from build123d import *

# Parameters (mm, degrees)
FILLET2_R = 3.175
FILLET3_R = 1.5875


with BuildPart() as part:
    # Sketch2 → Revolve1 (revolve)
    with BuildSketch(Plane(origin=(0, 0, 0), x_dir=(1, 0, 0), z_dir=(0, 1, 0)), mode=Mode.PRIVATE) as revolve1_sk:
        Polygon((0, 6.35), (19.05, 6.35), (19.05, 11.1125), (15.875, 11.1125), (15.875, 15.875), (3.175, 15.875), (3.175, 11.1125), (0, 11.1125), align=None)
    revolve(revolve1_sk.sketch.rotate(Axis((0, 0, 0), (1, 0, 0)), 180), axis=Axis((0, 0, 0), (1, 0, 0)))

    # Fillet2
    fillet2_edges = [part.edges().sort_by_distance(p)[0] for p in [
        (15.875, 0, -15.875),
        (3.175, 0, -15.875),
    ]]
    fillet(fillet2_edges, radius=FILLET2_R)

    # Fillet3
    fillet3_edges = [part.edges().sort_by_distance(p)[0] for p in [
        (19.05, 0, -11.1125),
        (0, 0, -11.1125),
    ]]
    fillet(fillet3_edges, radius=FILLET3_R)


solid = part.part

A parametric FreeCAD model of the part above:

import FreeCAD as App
import Part
import Sketcher

V = App.Vector
Q = App.Units.Quantity


def edges_at(feature, points):
    """Names of the edges that pass closest to the given points."""
    edges = feature.Shape.Edges
    near = lambda p: min(range(len(edges)), key=lambda i: edges[i].distToShape(Part.Vertex(*p))[0])
    return sorted({f"Edge{near(p) + 1}" for p in points})


def add_polygon(sketch, points):
    """Adds a closed chain of lines whose ends are joined by coincident constraints."""
    first, n = sketch.GeometryCount, len(points)
    for a, b in zip(points, points[1:] + points[:1]):
        sketch.addGeometry(Part.LineSegment(App.Vector(*a, 0), App.Vector(*b, 0)), False)
    for i in range(n):
        sketch.addConstraint(Sketcher.Constraint("Coincident", first + i, 2, first + (i + 1) % n, 1))

doc = App.newDocument("Part")
params = doc.addObject("Spreadsheet::Sheet", "Params")
for row, (alias, value) in enumerate([
    ("sketch1_width", "0.5 in"),
    ("sketch1_width2", "0.75 in"),
    ("sketch1_height", "0.1875 in"),
    ("revolution_angle", "360 deg"),
    ("fillet_radius", "0.125 in"),
    ("fillet2_radius", "0.0625 in"),
], start=1):
    params.set(f"A{row}", alias)
    params.set(f"B{row}", "=" + value)
    params.setAlias(f"B{row}", alias)

body = doc.addObject("PartDesign::Body", "Body")

sketch1 = body.newObject("Sketcher::SketchObject", "Sketch")
sketch1.AttachmentSupport = (doc.getObject("XZ_Plane"), [""])
sketch1.MapMode = "FlatFace"
add_polygon(sketch1, [(0, -6.3), (19.1, -6.3), (19.1, -11.1), (15.9, -11.1), (15.9, -15.9), (3.2, -15.9), (3.2, -11.1), (0, -11.1)])
sketch1.addConstraint(Sketcher.Constraint("Horizontal", 0))
sketch1.addConstraint(Sketcher.Constraint("Vertical", 1))
sketch1.addConstraint(Sketcher.Constraint("Horizontal", 2))
sketch1.addConstraint(Sketcher.Constraint("Vertical", 3))
sketch1.addConstraint(Sketcher.Constraint("Horizontal", 4))
sketch1.addConstraint(Sketcher.Constraint("Vertical", 5))
sketch1.addConstraint(Sketcher.Constraint("Horizontal", 6))
sketch1.addConstraint(Sketcher.Constraint("Vertical", 7))
sketch1.addConstraint(Sketcher.Constraint("PointOnObject", 6, 2, -2))
sketch1.addConstraint(Sketcher.Constraint("Horizontal", 2, 2, 5, 2))
sketch1.addConstraint(Sketcher.Constraint("Equal", 2, 6))
sketch1.addConstraint(Sketcher.Constraint("Equal", 1, 3))
sketch1.addConstraint(Sketcher.Constraint("DistanceX", 4, 2, 4, 1, Q("0.5 in")))
sketch1.addConstraint(Sketcher.Constraint("DistanceX", 0, 1, 0, 2, Q("0.75 in")))
sketch1.addConstraint(Sketcher.Constraint("DistanceY", 1, 2, 1, 1, Q("0.1875 in")))
sketch1.addConstraint(Sketcher.Constraint("DistanceY", 0, 2, -1, 1, Q("0.25 in")))
sketch1.setExpression("Constraints[20]", "Params.sketch1_width")
sketch1.setExpression("Constraints[21]", "Params.sketch1_width2")
sketch1.setExpression("Constraints[22]", "Params.sketch1_height")
revolution = body.newObject("PartDesign::Revolution", "Revolution")
revolution.Profile = sketch1
revolution.ReferenceAxis = (sketch1, ["H_Axis"])
revolution.setExpression("Angle", "Params.revolution_angle")
doc.recompute()

fillet = body.newObject("PartDesign::Fillet", "Fillet")
fillet.Base = (revolution, edges_at(revolution, [(15.875, 0, -15.875), (3.175, 0, -15.875)]))
fillet.setExpression("Radius", "Params.fillet_radius")
doc.recompute()

fillet2 = body.newObject("PartDesign::Fillet", "Fillet001")
fillet2.Base = (fillet, edges_at(fillet, [(19.05, 0, -11.113), (0, 0, -11.113)]))
fillet2.setExpression("Radius", "Params.fillet2_radius")

doc.recompute()
